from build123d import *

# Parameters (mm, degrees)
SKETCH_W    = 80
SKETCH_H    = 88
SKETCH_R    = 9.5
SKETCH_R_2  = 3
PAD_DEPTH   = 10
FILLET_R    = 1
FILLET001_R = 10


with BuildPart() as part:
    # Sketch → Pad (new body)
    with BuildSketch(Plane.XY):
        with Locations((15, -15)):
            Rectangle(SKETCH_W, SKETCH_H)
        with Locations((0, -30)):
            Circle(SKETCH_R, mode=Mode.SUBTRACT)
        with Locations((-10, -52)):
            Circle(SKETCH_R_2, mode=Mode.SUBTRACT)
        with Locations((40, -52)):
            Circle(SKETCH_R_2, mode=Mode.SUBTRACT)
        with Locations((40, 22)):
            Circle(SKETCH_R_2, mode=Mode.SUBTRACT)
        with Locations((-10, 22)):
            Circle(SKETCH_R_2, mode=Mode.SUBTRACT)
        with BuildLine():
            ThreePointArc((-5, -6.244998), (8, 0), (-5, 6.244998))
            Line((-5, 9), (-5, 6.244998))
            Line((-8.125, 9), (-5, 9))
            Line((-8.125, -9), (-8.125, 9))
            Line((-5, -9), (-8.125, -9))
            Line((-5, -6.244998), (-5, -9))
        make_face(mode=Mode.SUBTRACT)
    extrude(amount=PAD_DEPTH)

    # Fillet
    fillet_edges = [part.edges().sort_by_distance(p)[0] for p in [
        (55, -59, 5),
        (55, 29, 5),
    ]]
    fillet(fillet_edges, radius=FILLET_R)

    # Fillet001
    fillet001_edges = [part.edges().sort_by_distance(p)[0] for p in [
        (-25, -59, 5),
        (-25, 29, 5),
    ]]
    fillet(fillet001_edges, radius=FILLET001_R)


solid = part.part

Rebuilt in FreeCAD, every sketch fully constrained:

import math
import FreeCAD as App
import Part
import Sketcher

V = App.Vector
Q = App.Units.Quantity


def edges_at(feature, points):
    """Names of the edges that pass closest to the given points."""
    edges = feature.Shape.Edges
    near = lambda p: min(range(len(edges)), key=lambda i: edges[i].distToShape(Part.Vertex(*p))[0])
    return sorted({f"Edge{near(p) + 1}" for p in points})

doc = App.newDocument("Part")
body = doc.addObject("PartDesign::Body", "Body")

# Sketch on XY plane
sketch1 = body.newObject("Sketcher::SketchObject", "Sketch")
sketch1.AttachmentSupport = (doc.getObject("XY_Plane"), [""])
sketch1.MapMode = "FlatFace"
sketch1.addGeometry([
    Part.LineSegment(V(-25, 29, 0), V(-25, -59, 0)),  # 0
    Part.LineSegment(V(-25, -59, 0), V(55, -59, 0)),  # 1
    Part.LineSegment(V(55, -59, 0), V(55, 29, 0)),  # 2
    Part.LineSegment(V(55, 29, 0), V(-25, 29, 0)),  # 3
    Part.Circle(V(-10, -52, 0), V(0, 0, 1), 3),  # 4
    Part.Circle(V(0, -30, 0), V(0, 0, 1), 9.5),  # 5
    Part.Circle(V(40, -52, 0), V(0, 0, 1), 3),  # 6
    Part.ArcOfCircle(Part.Circle(V(0, 0, 0), V(0, 0, 1), 8), math.radians(-128.682187), math.radians(128.682187)),  # 7
    Part.LineSegment(V(-5, -6.244998, 0), V(-5, -9, 0)),  # 8
    Part.LineSegment(V(-5, -9, 0), V(-8.125, -9, 0)),  # 9
    Part.LineSegment(V(-8.125, -9, 0), V(-8.125, 9, 0)),  # 10
    Part.LineSegment(V(-8.125, 9, 0), V(-5, 9, 0)),  # 11
    Part.LineSegment(V(-5, 9, 0), V(-5, 6.244998, 0)),  # 12
    Part.Circle(V(-10, 22, 0), V(0, 0, 1), 3),  # 13
    Part.Circle(V(40, 22, 0), V(0, 0, 1), 3),  # 14
], False)
sketch1.addConstraint([
    Sketcher.Constraint("Coincident", 0, 2, 1, 1),
    Sketcher.Constraint("Coincident", 1, 2, 2, 1),
    Sketcher.Constraint("Coincident", 2, 2, 3, 1),
    Sketcher.Constraint("Coincident", 3, 2, 0, 1),
    Sketcher.Constraint("Coincident", 7, 1, 8, 1),
    Sketcher.Constraint("Coincident", 8, 2, 9, 1),
    Sketcher.Constraint("Coincident", 9, 2, 10, 1),
    Sketcher.Constraint("Coincident", 10, 2, 11, 1),
    Sketcher.Constraint("Coincident", 11, 2, 12, 1),
    Sketcher.Constraint("Coincident", 12, 2, 7, 2),
    Sketcher.Constraint("Vertical", 0),
    Sketcher.Constraint("Horizontal", 1),
    Sketcher.Constraint("Vertical", 2),
    Sketcher.Constraint("Horizontal", 3),
    Sketcher.Constraint("Vertical", 8),
    Sketcher.Constraint("Horizontal", 9),
    Sketcher.Constraint("Vertical", 10),
    Sketcher.Constraint("Horizontal", 11),
    Sketcher.Constraint("Vertical", 12),
    Sketcher.Constraint("Coincident", 7, 3, -1, 1),
    Sketcher.Constraint("Equal", 4, 6),
    Sketcher.Constraint("Equal", 6, 13),
    Sketcher.Constraint("Equal", 13, 14),
    Sketcher.Constraint("Symmetric", 8, 2, 11, 2, -1),
    Sketcher.Constraint("PointOnObject", 5, 3, -2),
    Sketcher.Constraint("Horizontal", 4, 3, 6, 3),
    Sketcher.Constraint("Horizontal", 13, 3, 14, 3),
    Sketcher.Constraint("Vertical", 4, 3, 13, 3),
    Sketcher.Constraint("Vertical", 6, 3, 14, 3),
    Sketcher.Constraint("Diameter", 4, Q("6 mm")),
    Sketcher.Constraint("Diameter", 5, Q("19 mm")),
    Sketcher.Constraint("Radius", 7, Q("8 mm")),
    Sketcher.Constraint("DistanceX", 1, 1, 1, 2, Q("80 mm")),
    Sketcher.Constraint("DistanceY", 0, 2, 0, 1, Q("88 mm")),
    Sketcher.Constraint("DistanceY", 10, 1, 10, 2, Q("18 mm")),
    Sketcher.Constraint("DistanceX", 4, 3, -1, 1, Q("10 mm")),
    Sketcher.Constraint("DistanceY", 4, 3, -1, 1, Q("52 mm")),
    Sketcher.Constraint("DistanceY", 5, 3, -1, 1, Q("30 mm")),
    Sketcher.Constraint("DistanceX", -1, 1, 6, 3, Q("40 mm")),
    Sketcher.Constraint("DistanceY", -1, 1, 13, 3, Q("22 mm")),
    Sketcher.Constraint("DistanceX", 0, 2, -1, 1, Q("25 mm")),
    Sketcher.Constraint("DistanceY", 0, 2, -1, 1, Q("59 mm")),
    Sketcher.Constraint("DistanceX", 7, 1, -1, 1, Q("5 mm")),
    Sketcher.Constraint("DistanceX", 9, 2, 9, 1, Q("3.125 mm")),
])
pad1 = body.newObject("PartDesign::Pad", "Pad")
pad1.Profile = sketch1
pad1.Length = 10
doc.recompute()

fillet = body.newObject("PartDesign::Fillet", "Fillet")
fillet.Base = (pad1, edges_at(pad1, [(55, -59, 5), (55, 29, 5)]))
fillet.Radius = 1
doc.recompute()

fillet2 = body.newObject("PartDesign::Fillet", "Fillet001")
fillet2.Base = (fillet, edges_at(fillet, [(-25, -59, 5), (-25, 29, 5)]))
fillet2.Radius = 10

doc.recompute()
